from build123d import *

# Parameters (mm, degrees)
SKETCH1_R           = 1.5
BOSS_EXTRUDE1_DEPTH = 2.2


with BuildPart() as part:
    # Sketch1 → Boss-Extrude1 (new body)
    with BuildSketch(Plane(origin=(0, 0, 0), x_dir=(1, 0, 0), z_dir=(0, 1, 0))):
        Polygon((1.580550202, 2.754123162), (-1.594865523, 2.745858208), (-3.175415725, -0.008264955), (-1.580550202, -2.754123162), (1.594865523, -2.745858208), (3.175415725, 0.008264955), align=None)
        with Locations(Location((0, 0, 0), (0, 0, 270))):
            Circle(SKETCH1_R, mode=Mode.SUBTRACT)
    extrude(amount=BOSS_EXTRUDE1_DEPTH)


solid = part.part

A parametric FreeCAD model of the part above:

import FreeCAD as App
import Part
import Sketcher
from FreeCAD import Vector
Q = App.Units.Quantity

doc = App.newDocument("Part")
body = doc.addObject("PartDesign::Body", "Body")

# Sketch on XZ plane
sketch1 = body.newObject("Sketcher::SketchObject", "Sketch")
sketch1.AttachmentSupport = (doc.getObject("XZ_Plane"), [""])
sketch1.MapMode = "FlatFace"
sketch1.addGeometry([
    Part.LineSegment(Vector(1.58055, -2.754123, 0), Vector(-1.594866, -2.745858, 0)),  # 0
    Part.LineSegment(Vector(-1.594866, -2.745858, 0), Vector(-3.175416, 0.008265, 0)),  # 1
    Part.LineSegment(Vector(-3.175416, 0.008265, 0), Vector(-1.58055, 2.754123, 0)),  # 2
    Part.LineSegment(Vector(-1.58055, 2.754123, 0), Vector(1.594866, 2.745858, 0)),  # 3
    Part.LineSegment(Vector(1.594866, 2.745858, 0), Vector(3.175416, -0.008265, 0)),  # 4
    Part.LineSegment(Vector(3.175416, -0.008265, 0), Vector(1.58055, -2.754123, 0)),  # 5
    Part.Circle(Vector(0, 0, 0), Vector(0, 0, 1), 1.5),  # 6
], False)
sketch1.addConstraint([
    Sketcher.Constraint("Coincident", 0, 2, 1, 1),
    Sketcher.Constraint("Coincident", 1, 2, 2, 1),
    Sketcher.Constraint("Coincident", 2, 2, 3, 1),
    Sketcher.Constraint("Coincident", 3, 2, 4, 1),
    Sketcher.Constraint("Coincident", 4, 2, 5, 1),
    Sketcher.Constraint("Coincident", 5, 2, 0, 1),
    Sketcher.Constraint("Coincident", 6, 3, -1, 1),
    Sketcher.Constraint("Symmetric", 0, 2, 3, 2, -1, 1),
    Sketcher.Constraint("Symmetric", 1, 2, 4, 2, -1, 1),
    Sketcher.Constraint("Symmetric", 2, 2, 5, 2, -1, 1),
    Sketcher.Constraint("Equal", 0, 1),
    Sketcher.Constraint("Equal", 1, 2),
    Sketcher.Constraint("Diameter", 6, Q("3 mm")),
    Sketcher.Constraint("DistanceY", 0, 2, -1, 1, Q("2.745858 mm")),
    Sketcher.Constraint("DistanceX", 2, 2, -1, 1, Q("1.58055 mm")),
    Sketcher.Constraint("DistanceX", 1, 2, 0, 2, Q("1.58055 mm")),
    Sketcher.Constraint("DistanceY", 1, 2, 2, 2, Q("2.745858 mm")),
])
pad1 = body.newObject("PartDesign::Pad", "Pad")
pad1.Profile = sketch1
pad1.Length = 2.2
pad1.Reversed = True

doc.recompute()
